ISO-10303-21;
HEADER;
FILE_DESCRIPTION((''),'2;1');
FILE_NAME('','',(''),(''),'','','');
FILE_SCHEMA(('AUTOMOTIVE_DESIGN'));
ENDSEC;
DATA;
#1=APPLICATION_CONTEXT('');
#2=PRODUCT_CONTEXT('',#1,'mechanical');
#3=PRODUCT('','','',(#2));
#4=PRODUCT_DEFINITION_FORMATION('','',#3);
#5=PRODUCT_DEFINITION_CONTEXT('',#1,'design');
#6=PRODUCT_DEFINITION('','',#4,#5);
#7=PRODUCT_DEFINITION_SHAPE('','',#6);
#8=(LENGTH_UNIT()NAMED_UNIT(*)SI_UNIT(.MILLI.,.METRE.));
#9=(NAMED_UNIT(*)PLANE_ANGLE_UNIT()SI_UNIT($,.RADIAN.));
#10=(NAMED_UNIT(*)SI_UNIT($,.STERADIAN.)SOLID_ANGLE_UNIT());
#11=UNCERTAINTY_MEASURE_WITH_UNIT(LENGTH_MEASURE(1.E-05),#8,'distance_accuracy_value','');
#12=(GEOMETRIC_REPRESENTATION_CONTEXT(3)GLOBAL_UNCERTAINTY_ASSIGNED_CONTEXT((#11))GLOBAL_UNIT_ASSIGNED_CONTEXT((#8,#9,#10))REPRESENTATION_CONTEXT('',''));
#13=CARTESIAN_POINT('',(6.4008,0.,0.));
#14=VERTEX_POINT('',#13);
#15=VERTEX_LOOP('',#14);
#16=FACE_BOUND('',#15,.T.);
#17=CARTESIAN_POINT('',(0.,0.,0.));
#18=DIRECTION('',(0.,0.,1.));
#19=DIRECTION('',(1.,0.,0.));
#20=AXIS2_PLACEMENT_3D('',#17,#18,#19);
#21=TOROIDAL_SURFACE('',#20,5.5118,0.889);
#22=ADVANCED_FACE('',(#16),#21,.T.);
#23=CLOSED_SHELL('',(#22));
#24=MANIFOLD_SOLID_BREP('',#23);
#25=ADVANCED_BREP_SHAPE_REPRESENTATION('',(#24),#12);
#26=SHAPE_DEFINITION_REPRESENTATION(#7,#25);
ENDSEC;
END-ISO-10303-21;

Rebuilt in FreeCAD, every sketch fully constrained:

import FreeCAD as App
import Part
import Sketcher
Q = App.Units.Quantity

doc = App.newDocument("Part")
params = doc.addObject("Spreadsheet::Sheet", "Params")
for row, (alias, value) in enumerate([
    ("sketch1_diameter", "0.07 in"),
    ("revolution_angle", "360 deg"),
], start=1):
    params.set(f"A{row}", alias)
    params.set(f"B{row}", "=" + value)
    params.setAlias(f"B{row}", alias)

body = doc.addObject("PartDesign::Body", "Body")

# Sketch on YZ plane
sketch1 = body.newObject("Sketcher::SketchObject", "Sketch")
sketch1.AttachmentSupport = (doc.getObject("YZ_Plane"), [""])
sketch1.MapMode = "FlatFace"
sketch1.addGeometry(Part.Circle(App.Vector(-5.5, 0, 0), App.Vector(0, 0, 1), 0.9), False)
sketch1.addConstraint([
    Sketcher.Constraint("PointOnObject", 0, 3, -1),
    Sketcher.Constraint("Diameter", 0, Q("0.07 in")),
    Sketcher.Constraint("DistanceX", 0, 3, -1, 1, Q("0.217 in")),
])
sketch1.setExpression("Constraints[1]", "Params.sketch1_diameter")
revolution = body.newObject("PartDesign::Revolution", "Revolution")
revolution.Profile = sketch1
revolution.ReferenceAxis = (sketch1, ["V_Axis"])
revolution.setExpression("Angle", "Params.revolution_angle")

doc.recompute()
